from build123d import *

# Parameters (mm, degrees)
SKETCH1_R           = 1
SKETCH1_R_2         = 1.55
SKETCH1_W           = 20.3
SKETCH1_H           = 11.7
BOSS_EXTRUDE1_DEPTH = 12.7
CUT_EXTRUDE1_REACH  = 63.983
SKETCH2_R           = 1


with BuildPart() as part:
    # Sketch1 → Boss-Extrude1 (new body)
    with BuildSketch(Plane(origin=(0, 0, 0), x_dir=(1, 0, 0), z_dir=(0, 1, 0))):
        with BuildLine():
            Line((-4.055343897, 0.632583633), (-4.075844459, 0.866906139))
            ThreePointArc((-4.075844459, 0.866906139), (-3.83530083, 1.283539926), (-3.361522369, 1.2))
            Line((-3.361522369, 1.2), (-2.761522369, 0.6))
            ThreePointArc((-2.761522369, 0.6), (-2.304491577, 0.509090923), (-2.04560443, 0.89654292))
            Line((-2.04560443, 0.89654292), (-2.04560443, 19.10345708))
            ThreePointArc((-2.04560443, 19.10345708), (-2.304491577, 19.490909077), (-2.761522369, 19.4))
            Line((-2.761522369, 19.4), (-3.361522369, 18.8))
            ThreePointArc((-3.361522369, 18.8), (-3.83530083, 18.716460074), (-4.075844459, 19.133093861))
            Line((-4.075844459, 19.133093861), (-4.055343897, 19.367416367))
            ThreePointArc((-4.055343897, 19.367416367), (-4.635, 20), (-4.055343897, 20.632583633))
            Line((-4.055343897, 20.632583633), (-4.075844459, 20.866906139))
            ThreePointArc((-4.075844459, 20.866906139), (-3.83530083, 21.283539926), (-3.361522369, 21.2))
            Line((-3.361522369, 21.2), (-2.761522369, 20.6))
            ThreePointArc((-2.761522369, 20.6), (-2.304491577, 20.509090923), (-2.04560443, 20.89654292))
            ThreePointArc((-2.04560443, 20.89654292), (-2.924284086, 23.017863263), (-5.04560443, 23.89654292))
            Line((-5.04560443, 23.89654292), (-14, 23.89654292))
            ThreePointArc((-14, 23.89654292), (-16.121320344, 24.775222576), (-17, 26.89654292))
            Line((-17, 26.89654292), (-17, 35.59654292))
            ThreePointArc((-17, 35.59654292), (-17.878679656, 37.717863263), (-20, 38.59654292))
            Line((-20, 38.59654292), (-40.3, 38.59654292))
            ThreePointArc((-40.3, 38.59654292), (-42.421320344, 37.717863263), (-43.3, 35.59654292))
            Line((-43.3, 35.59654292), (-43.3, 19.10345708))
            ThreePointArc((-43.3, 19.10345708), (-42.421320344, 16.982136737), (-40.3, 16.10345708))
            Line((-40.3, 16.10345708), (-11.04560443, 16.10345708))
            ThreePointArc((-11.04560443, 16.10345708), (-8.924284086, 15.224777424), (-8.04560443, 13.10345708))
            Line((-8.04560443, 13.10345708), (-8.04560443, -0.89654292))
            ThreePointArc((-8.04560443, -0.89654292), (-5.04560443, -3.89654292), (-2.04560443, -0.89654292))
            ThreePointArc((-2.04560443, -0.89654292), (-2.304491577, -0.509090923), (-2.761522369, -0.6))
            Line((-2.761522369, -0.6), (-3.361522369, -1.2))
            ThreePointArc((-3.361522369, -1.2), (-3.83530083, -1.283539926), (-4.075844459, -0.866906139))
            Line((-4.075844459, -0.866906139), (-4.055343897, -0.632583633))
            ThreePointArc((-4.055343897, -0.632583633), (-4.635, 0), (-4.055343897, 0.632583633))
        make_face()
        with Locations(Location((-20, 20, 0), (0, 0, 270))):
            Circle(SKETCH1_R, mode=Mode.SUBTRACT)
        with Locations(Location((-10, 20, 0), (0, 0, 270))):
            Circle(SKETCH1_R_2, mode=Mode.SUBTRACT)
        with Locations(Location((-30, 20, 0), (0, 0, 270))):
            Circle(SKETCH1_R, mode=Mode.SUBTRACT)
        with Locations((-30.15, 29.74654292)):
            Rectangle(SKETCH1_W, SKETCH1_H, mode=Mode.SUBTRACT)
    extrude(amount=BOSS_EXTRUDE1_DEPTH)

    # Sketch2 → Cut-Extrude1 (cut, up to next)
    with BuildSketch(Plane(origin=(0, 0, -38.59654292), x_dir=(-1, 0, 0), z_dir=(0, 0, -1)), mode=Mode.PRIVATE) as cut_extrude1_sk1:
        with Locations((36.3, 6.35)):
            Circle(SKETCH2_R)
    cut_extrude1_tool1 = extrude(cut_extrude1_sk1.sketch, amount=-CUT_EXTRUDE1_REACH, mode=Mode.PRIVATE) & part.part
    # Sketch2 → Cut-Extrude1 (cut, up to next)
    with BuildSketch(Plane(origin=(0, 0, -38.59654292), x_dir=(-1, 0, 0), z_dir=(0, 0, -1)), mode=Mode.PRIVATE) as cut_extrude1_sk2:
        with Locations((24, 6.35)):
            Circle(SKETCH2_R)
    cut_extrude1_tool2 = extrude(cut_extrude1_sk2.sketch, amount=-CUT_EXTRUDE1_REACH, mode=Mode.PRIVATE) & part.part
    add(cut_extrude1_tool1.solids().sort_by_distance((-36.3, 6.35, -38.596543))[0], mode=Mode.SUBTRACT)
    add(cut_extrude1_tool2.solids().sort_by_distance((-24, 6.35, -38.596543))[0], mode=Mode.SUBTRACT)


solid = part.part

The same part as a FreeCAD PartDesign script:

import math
import FreeCAD as App
import Part
import Sketcher
from FreeCAD import Vector
Q = App.Units.Quantity


def add_polygon(sketch, points):
    """Adds a closed chain of lines whose ends are joined by coincident constraints."""
    first, n = sketch.GeometryCount, len(points)
    for a, b in zip(points, points[1:] + points[:1]):
        sketch.addGeometry(Part.LineSegment(App.Vector(*a, 0), App.Vector(*b, 0)), False)
    for i in range(n):
        sketch.addConstraint(Sketcher.Constraint("Coincident", first + i, 2, first + (i + 1) % n, 1))

doc = App.newDocument("Part")
body = doc.addObject("PartDesign::Body", "Body")

sketch1 = body.newObject("Sketcher::SketchObject", "Sketch")
sketch1.AttachmentSupport = (doc.getObject("XZ_Plane"), [""])
sketch1.MapMode = "FlatFace"
sketch1.addGeometry(Part.LineSegment(Vector(-4.06, -0.63, 0), Vector(-4.08, -0.87, 0)), False)
sketch1.addGeometry(Part.ArcOfCircle(Part.Circle(Vector(-3.66, -0.9, 0), Vector(0, 0, 1), 0.42), math.radians(175), math.radians(315)), False)
sketch1.addGeometry(Part.LineSegment(Vector(-3.36, -1.2, 0), Vector(-2.76, -0.6, 0)), False)
sketch1.addGeometry(Part.ArcOfCircle(Part.Circle(Vector(-2.46, -0.9, 0), Vector(0, 0, 1), 0.42), math.radians(0), math.radians(135)), False)
sketch1.addGeometry(Part.LineSegment(Vector(-2.05, -0.9, 0), Vector(-2.05, -19.1, 0)), False)
sketch1.addGeometry(Part.ArcOfCircle(Part.Circle(Vector(-2.46, -19.1, 0), Vector(0, 0, 1), 0.42), math.radians(-135), math.radians(0)), False)
sketch1.addGeometry(Part.LineSegment(Vector(-2.76, -19.4, 0), Vector(-3.36, -18.8, 0)), False)
sketch1.addGeometry(Part.ArcOfCircle(Part.Circle(Vector(-3.66, -19.1, 0), Vector(0, 0, 1), 0.42), math.radians(45), math.radians(185)), False)
sketch1.addGeometry(Part.LineSegment(Vector(-4.08, -19.13, 0), Vector(-4.06, -19.37, 0)), False)
sketch1.addGeometry(Part.ArcOfCircle(Part.Circle(Vector(-4, -20, 0), Vector(0, 0, 1), 0.64), math.radians(95), math.radians(265)), False)
sketch1.addGeometry(Part.LineSegment(Vector(-4.06, -20.63, 0), Vector(-4.08, -20.87, 0)), False)
sketch1.addGeometry(Part.ArcOfCircle(Part.Circle(Vector(-3.66, -20.9, 0), Vector(0, 0, 1), 0.42), math.radians(175), math.radians(315)), False)
sketch1.addGeometry(Part.LineSegment(Vector(-3.36, -21.2, 0), Vector(-2.76, -20.6, 0)), False)
sketch1.addGeometry(Part.ArcOfCircle(Part.Circle(Vector(-2.46, -20.9, 0), Vector(0, 0, 1), 0.42), math.radians(0), math.radians(135)), False)
sketch1.addGeometry(Part.ArcOfCircle(Part.Circle(Vector(-5.05, -20.9, 0), Vector(0, 0, 1), 3), math.radians(-90), math.radians(0)), False)
sketch1.addGeometry(Part.LineSegment(Vector(-5.05, -23.9, 0), Vector(-14, -23.9, 0)), False)
sketch1.addGeometry(Part.ArcOfCircle(Part.Circle(Vector(-14, -26.9, 0), Vector(0, 0, 1), 3), math.radians(90), math.radians(180)), False)
sketch1.addGeometry(Part.LineSegment(Vector(-17, -26.9, 0), Vector(-17, -35.6, 0)), False)
sketch1.addGeometry(Part.ArcOfCircle(Part.Circle(Vector(-20, -35.6, 0), Vector(0, 0, 1), 3), math.radians(-90), math.radians(0)), False)
sketch1.addGeometry(Part.LineSegment(Vector(-20, -38.6, 0), Vector(-40.3, -38.6, 0)), False)
sketch1.addGeometry(Part.ArcOfCircle(Part.Circle(Vector(-40.3, -35.6, 0), Vector(0, 0, 1), 3), math.radians(180), math.radians(270)), False)
sketch1.addGeometry(Part.LineSegment(Vector(-43.3, -35.6, 0), Vector(-43.3, -19.1, 0)), False)
sketch1.addGeometry(Part.ArcOfCircle(Part.Circle(Vector(-40.3, -19.1, 0), Vector(0, 0, 1), 3), math.radians(90), math.radians(180)), False)
sketch1.addGeometry(Part.LineSegment(Vector(-40.3, -16.1, 0), Vector(-11.05, -16.1, 0)), False)
sketch1.addGeometry(Part.ArcOfCircle(Part.Circle(Vector(-11.05, -13.1, 0), Vector(0, 0, 1), 3), math.radians(-90), math.radians(0)), False)
sketch1.addGeometry(Part.LineSegment(Vector(-8.05, -13.1, 0), Vector(-8.05, 0.9, 0)), False)
sketch1.addGeometry(Part.ArcOfCircle(Part.Circle(Vector(-5.05, 0.9, 0), Vector(0, 0, 1), 3), math.radians(0), math.radians(180)), False)
sketch1.addGeometry(Part.ArcOfCircle(Part.Circle(Vector(-2.46, 0.9, 0), Vector(0, 0, 1), 0.42), math.radians(-135), math.radians(0)), False)
sketch1.addGeometry(Part.LineSegment(Vector(-2.76, 0.6, 0), Vector(-3.36, 1.2, 0)), False)
sketch1.addGeometry(Part.ArcOfCircle(Part.Circle(Vector(-3.66, 0.9, 0), Vector(0, 0, 1), 0.42), math.radians(45), math.radians(185)), False)
sketch1.addGeometry(Part.LineSegment(Vector(-4.08, 0.87, 0), Vector(-4.06, 0.63, 0)), False)
sketch1.addGeometry(Part.ArcOfCircle(Part.Circle(Vector(-4, 0, 0), Vector(0, 0, 1), 0.64), math.radians(95), math.radians(265)), False)
sketch1.addGeometry(Part.Circle(Vector(-30, -20, 0), Vector(0, 0, 1), 1), False)
sketch1.addGeometry(Part.Circle(Vector(-20, -20, 0), Vector(0, 0, 1), 1), False)
sketch1.addGeometry(Part.Circle(Vector(-10, -20, 0), Vector(0, 0, 1), 1.55), False)
add_polygon(sketch1, [(-20, -23.9), (-40.3, -23.9), (-40.3, -35.6), (-20, -35.6)])
sketch1.addConstraint([
    Sketcher.Constraint("Tangent", 0, 2, 1, 1),
    Sketcher.Constraint("Tangent", 1, 2, 2, 1),
    Sketcher.Constraint("Tangent", 2, 2, 3, 2),
    Sketcher.Constraint("Tangent", 3, 1, 4, 1),
    Sketcher.Constraint("Tangent", 4, 2, 5, 2),
    Sketcher.Constraint("Tangent", 5, 1, 6, 1),
    Sketcher.Constraint("Tangent", 6, 2, 7, 1),
    Sketcher.Constraint("Tangent", 7, 2, 8, 1),
    Sketcher.Constraint("Coincident", 8, 2, 9, 1),
    Sketcher.Constraint("Coincident", 9, 2, 10, 1),
    Sketcher.Constraint("Tangent", 10, 2, 11, 1),
    Sketcher.Constraint("Tangent", 11, 2, 12, 1),
    Sketcher.Constraint("Tangent", 12, 2, 13, 2),
    Sketcher.Constraint("Tangent", 13, 1, 14, 2),
    Sketcher.Constraint("Tangent", 14, 1, 15, 1),
    Sketcher.Constraint("Tangent", 15, 2, 16, 1),
    Sketcher.Constraint("Tangent", 16, 2, 17, 1),
    Sketcher.Constraint("Tangent", 17, 2, 18, 2),
    Sketcher.Constraint("Tangent", 18, 1, 19, 1),
    Sketcher.Constraint("Tangent", 19, 2, 20, 2),
    Sketcher.Constraint("Tangent", 20, 1, 21, 1),
    Sketcher.Constraint("Tangent", 21, 2, 22, 2),
    Sketcher.Constraint("Tangent", 22, 1, 23, 1),
    Sketcher.Constraint("Tangent", 23, 2, 24, 1),
    Sketcher.Constraint("Tangent", 24, 2, 25, 1),
    Sketcher.Constraint("Tangent", 25, 2, 26, 2),
    Sketcher.Constraint("Tangent", 26, 1, 27, 2),
    Sketcher.Constraint("Tangent", 27, 1, 28, 1),
    Sketcher.Constraint("Tangent", 28, 2, 29, 1),
    Sketcher.Constraint("Tangent", 29, 2, 30, 1),
    Sketcher.Constraint("Coincident", 30, 2, 31, 1),
    Sketcher.Constraint("Coincident", 31, 2, 0, 1),
    Sketcher.Constraint("Vertical", 4),
    Sketcher.Constraint("Horizontal", 15),
    Sketcher.Constraint("Vertical", 17),
    Sketcher.Constraint("Horizontal", 19),
    Sketcher.Constraint("Vertical", 21),
    Sketcher.Constraint("Horizontal", 23),
    Sketcher.Constraint("Vertical", 25),
    Sketcher.Constraint("Horizontal", 35),
    Sketcher.Constraint("Vertical", 36),
    Sketcher.Constraint("Horizontal", 37),
    Sketcher.Constraint("Vertical", 38),
    Sketcher.Constraint("Coincident", 36, 2, 20, 3),
    Sketcher.Constraint("Coincident", 37, 2, 18, 3),
    Sketcher.Constraint("Equal", 1, 3),
    Sketcher.Constraint("Equal", 3, 5),
    Sketcher.Constraint("Equal", 5, 7),
    Sketcher.Constraint("Equal", 7, 11),
    Sketcher.Constraint("Equal", 11, 13),
    Sketcher.Constraint("Equal", 14, 16),
    Sketcher.Constraint("Equal", 16, 18),
    Sketcher.Constraint("Equal", 20, 22),
    Sketcher.Constraint("Equal", 22, 24),
    Sketcher.Constraint("Equal", 24, 26),
    Sketcher.Constraint("Equal", 13, 27),
    Sketcher.Constraint("Equal", 27, 29),
    Sketcher.Constraint("Equal", 9, 31),
    Sketcher.Constraint("Equal", 32, 33),
    Sketcher.Constraint("Symmetric", 3, 3, 27, 3, -1),
    Sketcher.Constraint("Symmetric", 1, 3, 29, 3, -1),
    Sketcher.Constraint("Symmetric", 30, 2, 31, 2, -1),
    Sketcher.Constraint("Perpendicular", 2, 6),
    Sketcher.Constraint("Parallel", 0, 10),
    Sketcher.Constraint("Perpendicular", 6, 12),
    Sketcher.Constraint("Perpendicular", 12, 28),
    Sketcher.Constraint("Parallel", 8, 30),
    Sketcher.Constraint("Horizontal", 13, 3, 14, 3),
    Sketcher.Constraint("Horizontal", 5, 3, 22, 3),
    Sketcher.Constraint("Horizontal", 26, 3, 27, 3),
    Sketcher.Constraint("Horizontal", 9, 3, 32, 3),
    Sketcher.Constraint("Horizontal", 32, 3, 33, 3),
    Sketcher.Constraint("Horizontal", 33, 3, 34, 3),
    Sketcher.Constraint("Horizontal", 15, 2, 35, 2),
    Sketcher.Constraint("Vertical", 1, 3, 7, 3),
    Sketcher.Constraint("Vertical", 7, 3, 11, 3),
    Sketcher.Constraint("Vertical", 5, 3, 13, 3),
    Sketcher.Constraint("Vertical", 9, 3, 31, 3),
    Sketcher.Constraint("Vertical", 18, 3, 33, 3),
    Sketcher.Constraint("Vertical", 8, 2, 9, 2),
    Sketcher.Constraint("Vertical", 9, 2, 30, 2),
    Sketcher.Constraint("Diameter", 32, Q("2 mm")),
    Sketcher.Constraint("Radius", 14, Q("3 mm")),
    Sketcher.Constraint("Diameter", 34, Q("3.1 mm")),
    Sketcher.Constraint("DistanceY", 25, 1, 25, 2, Q("14 mm")),
    Sketcher.Constraint("Angle", 0, Q("-95 deg")),
    Sketcher.Constraint("DistanceX", 19, 2, 19, 1, Q("20.3 mm")),
    Sketcher.Constraint("DistanceY", 17, 2, 17, 1, Q("8.7 mm")),
    Sketcher.Constraint("DistanceX", 9, 3, -1, 1, Q("4 mm")),
    Sketcher.Constraint("DistanceX", 16, 3, -1, 1, Q("14 mm")),
    Sketcher.Constraint("DistanceX", 32, 3, -1, 1, Q("30 mm")),
    Sketcher.Constraint("DistanceX", 34, 3, -1, 1, Q("10 mm")),
    Sketcher.Constraint("Radius", 9, Q("0.635 mm")),
    Sketcher.Constraint("DistanceY", 1, 2, -1, 1, Q("1.2 mm")),
    Sketcher.Constraint("DistanceY", 2, 2, -1, 1, Q("0.6 mm")),
    Sketcher.Constraint("Radius", 1, Q("0.419375 mm")),
    Sketcher.Constraint("DistanceX", 15, 2, 15, 1, Q("8.954396 mm")),
])
pad1 = body.newObject("PartDesign::Pad", "Pad")
pad1.Profile = sketch1
pad1.Length = 12.7
pad1.Reversed = True

sketch2 = body.newObject("Sketcher::SketchObject", "Sketch001")
sketch2.AttachmentSupport = (doc.getObject("XY_Plane"), [""])
sketch2.MapMode = "FlatFace"
sketch2.AttachmentOffset = App.Placement(Vector(0, 0, -38.596543), App.Rotation())
sketch2.addGeometry(Part.Circle(Vector(-36.3, 6.3, 0), Vector(0, 0, 1), 1), False)
sketch2.addConstraint([
    Sketcher.Constraint("Diameter", 0, Q("2 mm")),
    Sketcher.Constraint("DistanceX", 0, 3, -1, 1, Q("36.3 mm")),
    Sketcher.Constraint("DistanceY", -1, 1, 0, 3, Q("6.35 mm")),
])
pocket1 = body.newObject("PartDesign::Pocket", "Pocket")
pocket1.Profile = sketch2
pocket1.Type = "UpToFirst"
pocket1.Reversed = True

sketch3 = body.newObject("Sketcher::SketchObject", "Sketch002")
sketch3.AttachmentSupport = (doc.getObject("XY_Plane"), [""])
sketch3.MapMode = "FlatFace"
sketch3.AttachmentOffset = App.Placement(Vector(0, 0, -38.596543), App.Rotation())
sketch3.addGeometry(Part.Circle(Vector(-24, 6.3, 0), Vector(0, 0, 1), 1), False)
sketch3.addConstraint([
    Sketcher.Constraint("Diameter", 0, Q("2 mm")),
    Sketcher.Constraint("DistanceX", 0, 3, -1, 1, Q("24 mm")),
    Sketcher.Constraint("DistanceY", -1, 1, 0, 3, Q("6.35 mm")),
])
pocket2 = body.newObject("PartDesign::Pocket", "Pocket001")
pocket2.Profile = sketch3
pocket2.Type = "UpToFirst"
pocket2.Reversed = True

doc.recompute()
